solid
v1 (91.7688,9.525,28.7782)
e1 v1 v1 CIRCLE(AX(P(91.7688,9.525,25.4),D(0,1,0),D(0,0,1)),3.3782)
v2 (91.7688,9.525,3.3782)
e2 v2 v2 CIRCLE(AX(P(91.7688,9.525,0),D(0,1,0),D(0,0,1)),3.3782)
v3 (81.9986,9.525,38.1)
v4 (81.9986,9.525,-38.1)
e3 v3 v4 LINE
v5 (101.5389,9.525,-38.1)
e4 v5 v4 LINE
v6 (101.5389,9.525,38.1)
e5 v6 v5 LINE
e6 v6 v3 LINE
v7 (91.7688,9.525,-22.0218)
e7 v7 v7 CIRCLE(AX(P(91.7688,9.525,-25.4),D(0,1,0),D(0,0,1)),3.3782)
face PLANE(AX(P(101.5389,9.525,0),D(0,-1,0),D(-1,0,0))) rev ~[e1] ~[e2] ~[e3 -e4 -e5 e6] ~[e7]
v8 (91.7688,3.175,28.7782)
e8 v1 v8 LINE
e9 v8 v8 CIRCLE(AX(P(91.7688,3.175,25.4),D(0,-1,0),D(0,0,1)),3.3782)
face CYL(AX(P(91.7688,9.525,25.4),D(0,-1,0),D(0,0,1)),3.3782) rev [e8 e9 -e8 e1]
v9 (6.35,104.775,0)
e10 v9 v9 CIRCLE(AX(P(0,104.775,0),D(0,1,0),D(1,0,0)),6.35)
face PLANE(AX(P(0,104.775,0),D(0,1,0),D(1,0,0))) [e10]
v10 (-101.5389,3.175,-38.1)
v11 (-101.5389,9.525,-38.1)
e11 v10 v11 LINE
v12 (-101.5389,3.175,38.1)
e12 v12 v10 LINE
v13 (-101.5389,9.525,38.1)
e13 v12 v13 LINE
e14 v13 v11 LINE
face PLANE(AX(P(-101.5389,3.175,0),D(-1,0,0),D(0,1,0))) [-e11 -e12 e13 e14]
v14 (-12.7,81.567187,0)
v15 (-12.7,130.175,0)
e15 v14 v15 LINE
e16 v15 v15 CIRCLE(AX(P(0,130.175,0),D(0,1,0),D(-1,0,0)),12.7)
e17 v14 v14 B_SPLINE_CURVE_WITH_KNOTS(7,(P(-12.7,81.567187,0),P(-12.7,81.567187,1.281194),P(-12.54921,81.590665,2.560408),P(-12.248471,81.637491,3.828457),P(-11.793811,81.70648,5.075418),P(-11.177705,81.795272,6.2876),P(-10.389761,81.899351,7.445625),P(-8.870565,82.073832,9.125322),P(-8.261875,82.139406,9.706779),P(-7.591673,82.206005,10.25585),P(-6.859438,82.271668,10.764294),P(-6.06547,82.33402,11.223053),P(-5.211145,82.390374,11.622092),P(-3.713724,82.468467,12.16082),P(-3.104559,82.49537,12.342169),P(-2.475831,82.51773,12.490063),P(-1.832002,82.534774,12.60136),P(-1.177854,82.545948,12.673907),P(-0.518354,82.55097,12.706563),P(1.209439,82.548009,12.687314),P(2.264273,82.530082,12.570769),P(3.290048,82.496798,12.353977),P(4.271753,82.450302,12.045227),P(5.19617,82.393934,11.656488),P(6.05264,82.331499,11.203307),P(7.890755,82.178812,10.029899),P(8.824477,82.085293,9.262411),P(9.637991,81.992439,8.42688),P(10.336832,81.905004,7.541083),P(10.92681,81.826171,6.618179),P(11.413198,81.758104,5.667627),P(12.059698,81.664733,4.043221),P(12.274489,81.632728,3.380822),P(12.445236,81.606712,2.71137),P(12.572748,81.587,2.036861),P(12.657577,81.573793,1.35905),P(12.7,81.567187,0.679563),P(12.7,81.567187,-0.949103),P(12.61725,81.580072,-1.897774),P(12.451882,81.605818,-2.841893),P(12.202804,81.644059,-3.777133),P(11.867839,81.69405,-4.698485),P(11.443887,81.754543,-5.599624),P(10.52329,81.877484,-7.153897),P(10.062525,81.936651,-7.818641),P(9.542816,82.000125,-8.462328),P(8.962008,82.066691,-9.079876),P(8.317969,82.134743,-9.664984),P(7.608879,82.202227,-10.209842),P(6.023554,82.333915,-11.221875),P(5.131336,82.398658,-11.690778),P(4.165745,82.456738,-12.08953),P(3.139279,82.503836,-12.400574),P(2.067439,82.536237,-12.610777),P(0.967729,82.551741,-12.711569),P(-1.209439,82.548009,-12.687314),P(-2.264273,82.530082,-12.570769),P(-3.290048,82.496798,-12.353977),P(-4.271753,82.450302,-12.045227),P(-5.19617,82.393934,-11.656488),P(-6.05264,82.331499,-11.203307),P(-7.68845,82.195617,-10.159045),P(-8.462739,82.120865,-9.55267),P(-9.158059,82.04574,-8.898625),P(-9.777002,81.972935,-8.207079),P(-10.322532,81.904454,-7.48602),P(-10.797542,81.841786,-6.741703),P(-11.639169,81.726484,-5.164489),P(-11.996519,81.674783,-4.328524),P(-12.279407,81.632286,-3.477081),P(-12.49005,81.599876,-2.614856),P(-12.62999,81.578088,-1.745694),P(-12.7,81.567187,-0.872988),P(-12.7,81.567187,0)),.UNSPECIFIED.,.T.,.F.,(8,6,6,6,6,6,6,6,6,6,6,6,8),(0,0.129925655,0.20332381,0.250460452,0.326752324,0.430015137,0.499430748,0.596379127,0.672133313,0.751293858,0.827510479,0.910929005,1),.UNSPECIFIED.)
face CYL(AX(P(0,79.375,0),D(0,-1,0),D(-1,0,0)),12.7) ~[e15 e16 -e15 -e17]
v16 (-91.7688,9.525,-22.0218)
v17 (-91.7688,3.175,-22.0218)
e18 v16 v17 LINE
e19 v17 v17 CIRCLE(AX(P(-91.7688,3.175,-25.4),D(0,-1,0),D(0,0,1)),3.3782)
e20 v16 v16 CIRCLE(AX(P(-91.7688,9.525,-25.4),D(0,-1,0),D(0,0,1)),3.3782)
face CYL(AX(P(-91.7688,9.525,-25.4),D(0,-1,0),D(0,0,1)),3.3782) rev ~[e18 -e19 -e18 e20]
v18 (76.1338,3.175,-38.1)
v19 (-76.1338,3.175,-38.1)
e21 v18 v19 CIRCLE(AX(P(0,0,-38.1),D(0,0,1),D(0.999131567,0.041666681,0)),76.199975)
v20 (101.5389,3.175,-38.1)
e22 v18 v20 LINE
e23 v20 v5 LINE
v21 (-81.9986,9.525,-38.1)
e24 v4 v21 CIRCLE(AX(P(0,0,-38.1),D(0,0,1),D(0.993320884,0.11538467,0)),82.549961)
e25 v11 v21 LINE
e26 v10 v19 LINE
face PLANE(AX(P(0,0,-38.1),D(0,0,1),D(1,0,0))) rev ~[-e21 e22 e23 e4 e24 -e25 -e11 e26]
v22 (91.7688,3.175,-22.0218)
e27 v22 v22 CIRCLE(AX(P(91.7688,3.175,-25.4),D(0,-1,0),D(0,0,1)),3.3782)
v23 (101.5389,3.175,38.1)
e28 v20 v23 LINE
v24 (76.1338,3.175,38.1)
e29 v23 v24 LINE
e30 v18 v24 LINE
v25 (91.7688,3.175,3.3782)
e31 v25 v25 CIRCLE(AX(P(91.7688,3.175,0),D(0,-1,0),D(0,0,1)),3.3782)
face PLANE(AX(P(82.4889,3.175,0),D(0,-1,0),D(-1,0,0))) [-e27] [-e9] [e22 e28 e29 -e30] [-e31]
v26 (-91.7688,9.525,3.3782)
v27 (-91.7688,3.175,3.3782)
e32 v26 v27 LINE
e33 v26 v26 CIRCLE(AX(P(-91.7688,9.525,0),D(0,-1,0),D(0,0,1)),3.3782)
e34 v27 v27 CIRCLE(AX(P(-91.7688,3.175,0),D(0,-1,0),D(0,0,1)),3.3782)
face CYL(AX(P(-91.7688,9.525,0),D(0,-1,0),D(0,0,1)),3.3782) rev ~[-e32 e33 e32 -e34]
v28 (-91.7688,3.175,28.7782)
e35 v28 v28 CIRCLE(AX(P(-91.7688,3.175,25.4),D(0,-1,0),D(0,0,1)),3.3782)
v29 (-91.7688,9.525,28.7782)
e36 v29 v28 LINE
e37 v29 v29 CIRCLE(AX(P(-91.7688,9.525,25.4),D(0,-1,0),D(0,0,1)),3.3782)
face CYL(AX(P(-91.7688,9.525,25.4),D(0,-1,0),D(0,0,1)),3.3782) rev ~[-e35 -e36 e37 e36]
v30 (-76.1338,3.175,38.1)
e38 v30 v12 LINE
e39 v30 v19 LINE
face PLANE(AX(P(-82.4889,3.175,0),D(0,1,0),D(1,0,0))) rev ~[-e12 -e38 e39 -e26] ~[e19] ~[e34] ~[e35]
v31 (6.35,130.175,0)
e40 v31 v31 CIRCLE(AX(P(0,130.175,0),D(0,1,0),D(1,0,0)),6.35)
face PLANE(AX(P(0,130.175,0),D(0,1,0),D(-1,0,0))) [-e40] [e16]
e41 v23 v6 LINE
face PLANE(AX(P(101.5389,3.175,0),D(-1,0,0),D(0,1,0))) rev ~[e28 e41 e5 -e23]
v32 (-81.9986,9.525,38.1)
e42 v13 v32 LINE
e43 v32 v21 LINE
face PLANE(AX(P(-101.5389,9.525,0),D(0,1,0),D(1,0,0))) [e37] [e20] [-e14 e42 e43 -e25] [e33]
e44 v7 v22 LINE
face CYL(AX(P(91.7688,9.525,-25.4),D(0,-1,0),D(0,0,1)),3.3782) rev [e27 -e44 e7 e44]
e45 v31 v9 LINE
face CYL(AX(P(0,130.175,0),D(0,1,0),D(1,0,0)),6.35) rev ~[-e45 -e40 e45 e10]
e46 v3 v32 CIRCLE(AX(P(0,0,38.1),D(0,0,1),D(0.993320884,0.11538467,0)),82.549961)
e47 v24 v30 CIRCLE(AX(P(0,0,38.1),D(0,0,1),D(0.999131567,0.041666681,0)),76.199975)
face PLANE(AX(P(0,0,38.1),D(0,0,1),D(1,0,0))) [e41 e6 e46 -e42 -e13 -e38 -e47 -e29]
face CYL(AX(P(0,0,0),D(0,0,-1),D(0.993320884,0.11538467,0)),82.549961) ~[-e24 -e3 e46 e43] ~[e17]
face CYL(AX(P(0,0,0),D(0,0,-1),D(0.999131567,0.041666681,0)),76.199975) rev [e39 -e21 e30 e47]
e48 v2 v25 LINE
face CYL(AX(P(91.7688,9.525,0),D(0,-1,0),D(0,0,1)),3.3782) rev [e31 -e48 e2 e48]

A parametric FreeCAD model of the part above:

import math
import FreeCAD as App
import Part
import Sketcher
from FreeCAD import Vector
Q = App.Units.Quantity

doc = App.newDocument("Part")
body = doc.addObject("PartDesign::Body", "Body")

sketch1 = body.newObject("Sketcher::SketchObject", "Sketch")
sketch1.AttachmentSupport = (doc.getObject("XY_Plane"), [""])
sketch1.MapMode = "FlatFace"
sketch1.addGeometry(Part.ArcOfCircle(Part.Circle(Vector(0, 0, 0), Vector(0, 0, 1), 76.199975), math.radians(2.388016), math.radians(177.611984)), False)
sketch1.addGeometry(Part.LineSegment(Vector(76.1338, 3.175, 0), Vector(101.5389, 3.175, 0)), False)
sketch1.addGeometry(Part.LineSegment(Vector(101.5389, 3.175, 0), Vector(101.5389, 9.525, 0)), False)
sketch1.addGeometry(Part.LineSegment(Vector(101.5389, 9.525, 0), Vector(81.9986, 9.525, 0)), False)
sketch1.addGeometry(Part.ArcOfCircle(Part.Circle(Vector(0, 0, 0), Vector(0, 0, 1), 82.549961), math.radians(6.625813), math.radians(173.374187)), False)
sketch1.addGeometry(Part.LineSegment(Vector(-81.9986, 9.525, 0), Vector(-101.5389, 9.525, 0)), False)
sketch1.addGeometry(Part.LineSegment(Vector(-101.5389, 9.525, 0), Vector(-101.5389, 3.175, 0)), False)
sketch1.addGeometry(Part.LineSegment(Vector(-101.5389, 3.175, 0), Vector(-76.1338, 3.175, 0)), False)
sketch1.addConstraint(Sketcher.Constraint("Coincident", 0, 1, 1, 1))
sketch1.addConstraint(Sketcher.Constraint("Coincident", 1, 2, 2, 1))
sketch1.addConstraint(Sketcher.Constraint("Coincident", 2, 2, 3, 1))
sketch1.addConstraint(Sketcher.Constraint("Coincident", 3, 2, 4, 1))
sketch1.addConstraint(Sketcher.Constraint("Coincident", 4, 2, 5, 1))
sketch1.addConstraint(Sketcher.Constraint("Coincident", 5, 2, 6, 1))
sketch1.addConstraint(Sketcher.Constraint("Coincident", 6, 2, 7, 1))
sketch1.addConstraint(Sketcher.Constraint("Coincident", 7, 2, 0, 2))
sketch1.addConstraint(Sketcher.Constraint("Horizontal", 1))
sketch1.addConstraint(Sketcher.Constraint("Vertical", 2))
sketch1.addConstraint(Sketcher.Constraint("Horizontal", 3))
sketch1.addConstraint(Sketcher.Constraint("Horizontal", 5))
sketch1.addConstraint(Sketcher.Constraint("Vertical", 6))
sketch1.addConstraint(Sketcher.Constraint("Horizontal", 7))
sketch1.addConstraint(Sketcher.Constraint("Coincident", 0, 3, -1, 1))
sketch1.addConstraint(Sketcher.Constraint("Coincident", 4, 3, -1, 1))
sketch1.addConstraint(Sketcher.Constraint("Symmetric", 2, 2, 5, 2, -2))
sketch1.addConstraint(Sketcher.Constraint("Horizontal", 1, 2, 6, 2))
sketch1.addConstraint(Sketcher.Constraint("Radius", 0, Q("3 in")))
sketch1.addConstraint(Sketcher.Constraint("DistanceY", 2, 1, 2, 2, Q("0.25 in")))
sketch1.addConstraint(Sketcher.Constraint("Radius", 4, Q("3.25 in")))
sketch1.addConstraint(Sketcher.Constraint("DistanceY", -1, 1, 0, 1, Q("0.125 in")))
sketch1.addConstraint(Sketcher.Constraint("DistanceX", 1, 1, 1, 2, Q("1.0002 in")))
pad1 = body.newObject("PartDesign::Pad", "Pad")
pad1.Profile = sketch1
pad1.Length = Q("3 in")
pad1.Midplane = True

sketch2 = body.newObject("Sketcher::SketchObject", "Sketch001")
sketch2.AttachmentSupport = (doc.getObject("XZ_Plane"), [""])
sketch2.MapMode = "FlatFace"
sketch2.AttachmentOffset = App.Placement(Vector(0, 0, -0.375 * 25.4), App.Rotation())
sketch2.addGeometry(Part.Circle(Vector(-91.7688, 25.4, 0), Vector(0, 0, 1), 3.3782), False)
sketch2.addGeometry(Part.Circle(Vector(-91.7688, 0, 0), Vector(0, 0, 1), 3.3782), False)
sketch2.addGeometry(Part.Circle(Vector(-91.7688, -25.4, 0), Vector(0, 0, 1), 3.3782), False)
sketch2.addConstraint(Sketcher.Constraint("Equal", 0, 1))
sketch2.addConstraint(Sketcher.Constraint("Equal", 1, 2))
sketch2.addConstraint(Sketcher.Constraint("Symmetric", 0, 3, 2, 3, -1))
sketch2.addConstraint(Sketcher.Constraint("PointOnObject", 1, 3, -1))
sketch2.addConstraint(Sketcher.Constraint("Vertical", 0, 3, 1, 3))
sketch2.addConstraint(Sketcher.Constraint("Diameter", 0, Q("0.266 in")))
sketch2.addConstraint(Sketcher.Constraint("DistanceY", -1, 1, 0, 3, Q("1 in")))
sketch2.addConstraint(Sketcher.Constraint("DistanceX", 0, 3, -1, 1, 91.7688))
doc.recompute()
hole = body.newObject("PartDesign::Hole", "Hole")
hole.Profile = sketch2
hole.ThreadType = "None"
hole.Diameter = Q("0.266 in")
hole.DepthType = "ThroughAll"
hole.Reversed = True
doc.recompute()

mirrored = body.newObject("PartDesign::Mirrored", "Mirrored")
mirrored.Originals = [hole]
mirrored.MirrorPlane = (doc.getObject("YZ_Plane"), [""])
body.Tip = mirrored

sketch3 = body.newObject("Sketcher::SketchObject", "Sketch002")
sketch3.AttachmentSupport = (doc.getObject("XZ_Plane"), [""])
sketch3.MapMode = "FlatFace"
sketch3.AttachmentOffset = App.Placement(Vector(0, 0, -3.125 * 25.4), App.Rotation())
sketch3.addGeometry(Part.Circle(Vector(0, 0, 0), Vector(0, 0, 1), 12.7), False)
sketch3.addConstraint(Sketcher.Constraint("Coincident", 0, 3, -1, 1))
sketch3.addConstraint(Sketcher.Constraint("Diameter", 0, Q("1 in")))
pad2 = body.newObject("PartDesign::Pad", "Pad001")
pad2.Profile = sketch3
pad2.Length = Q("2 in")
pad2.Reversed = True

sketch4 = body.newObject("Sketcher::SketchObject", "Sketch003")
sketch4.AttachmentSupport = (doc.getObject("XZ_Plane"), [""])
sketch4.MapMode = "FlatFace"
sketch4.AttachmentOffset = App.Placement(Vector(0, 0, -5.125 * 25.4), App.Rotation())
sketch4.addGeometry(Part.Circle(Vector(0, 0, 0), Vector(0, 0, 1), 6.35), False)
sketch4.addConstraint(Sketcher.Constraint("Coincident", 0, 3, -1, 1))
sketch4.addConstraint(Sketcher.Constraint("Diameter", 0, Q("0.5 in")))
pocket1 = body.newObject("PartDesign::Pocket", "Pocket")
pocket1.Profile = sketch4
pocket1.Length = Q("1 in")
pocket1.Reversed = True

doc.recompute()
